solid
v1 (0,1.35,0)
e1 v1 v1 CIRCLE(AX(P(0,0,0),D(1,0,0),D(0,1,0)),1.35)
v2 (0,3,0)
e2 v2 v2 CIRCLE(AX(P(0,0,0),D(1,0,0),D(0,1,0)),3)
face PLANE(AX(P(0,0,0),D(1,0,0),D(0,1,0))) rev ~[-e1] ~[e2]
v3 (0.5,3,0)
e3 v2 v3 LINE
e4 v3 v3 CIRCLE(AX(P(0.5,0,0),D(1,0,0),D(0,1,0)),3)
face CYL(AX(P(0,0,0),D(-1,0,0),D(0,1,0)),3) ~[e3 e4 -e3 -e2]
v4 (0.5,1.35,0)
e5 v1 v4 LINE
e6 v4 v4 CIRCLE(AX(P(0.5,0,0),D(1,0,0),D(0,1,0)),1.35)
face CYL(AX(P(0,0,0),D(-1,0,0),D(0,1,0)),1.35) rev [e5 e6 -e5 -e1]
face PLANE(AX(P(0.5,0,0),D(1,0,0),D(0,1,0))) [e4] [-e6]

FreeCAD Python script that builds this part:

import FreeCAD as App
import Part
import Sketcher

V = App.Vector
Q = App.Units.Quantity

doc = App.newDocument("Part")
params = doc.addObject("Spreadsheet::Sheet", "Params")
for row, (alias, value) in enumerate([
    ("sketch1_diameter", "6 mm"),
    ("sketch1_diameter2", "2.7 mm"),
    ("pad1_length", "0.5 mm"),
], start=1):
    params.set(f"A{row}", alias)
    params.set(f"B{row}", "=" + value)
    params.setAlias(f"B{row}", alias)

body = doc.addObject("PartDesign::Body", "Body")

# Sketch on YZ plane
sketch1 = body.newObject("Sketcher::SketchObject", "Sketch")
sketch1.AttachmentSupport = (doc.getObject("YZ_Plane"), [""])
sketch1.MapMode = "FlatFace"
sketch1.addGeometry([
    Part.Circle(V(0, 0, 0), V(0, 0, 1), 3),
    Part.Circle(V(0, 0, 0), V(0, 0, 1), 1.35),
], False)
sketch1.addConstraint([
    Sketcher.Constraint("Coincident", 0, 3, -1, 1),
    Sketcher.Constraint("Coincident", 1, 3, -1, 1),
    Sketcher.Constraint("Diameter", 0, Q("6 mm")),
    Sketcher.Constraint("Diameter", 1, Q("2.7 mm")),
])
sketch1.setExpression("Constraints[2]", "Params.sketch1_diameter")
sketch1.setExpression("Constraints[3]", "Params.sketch1_diameter2")
pad1 = body.newObject("PartDesign::Pad", "Pad")
pad1.Profile = sketch1
pad1.setExpression("Length", "Params.pad1_length")

doc.recompute()
